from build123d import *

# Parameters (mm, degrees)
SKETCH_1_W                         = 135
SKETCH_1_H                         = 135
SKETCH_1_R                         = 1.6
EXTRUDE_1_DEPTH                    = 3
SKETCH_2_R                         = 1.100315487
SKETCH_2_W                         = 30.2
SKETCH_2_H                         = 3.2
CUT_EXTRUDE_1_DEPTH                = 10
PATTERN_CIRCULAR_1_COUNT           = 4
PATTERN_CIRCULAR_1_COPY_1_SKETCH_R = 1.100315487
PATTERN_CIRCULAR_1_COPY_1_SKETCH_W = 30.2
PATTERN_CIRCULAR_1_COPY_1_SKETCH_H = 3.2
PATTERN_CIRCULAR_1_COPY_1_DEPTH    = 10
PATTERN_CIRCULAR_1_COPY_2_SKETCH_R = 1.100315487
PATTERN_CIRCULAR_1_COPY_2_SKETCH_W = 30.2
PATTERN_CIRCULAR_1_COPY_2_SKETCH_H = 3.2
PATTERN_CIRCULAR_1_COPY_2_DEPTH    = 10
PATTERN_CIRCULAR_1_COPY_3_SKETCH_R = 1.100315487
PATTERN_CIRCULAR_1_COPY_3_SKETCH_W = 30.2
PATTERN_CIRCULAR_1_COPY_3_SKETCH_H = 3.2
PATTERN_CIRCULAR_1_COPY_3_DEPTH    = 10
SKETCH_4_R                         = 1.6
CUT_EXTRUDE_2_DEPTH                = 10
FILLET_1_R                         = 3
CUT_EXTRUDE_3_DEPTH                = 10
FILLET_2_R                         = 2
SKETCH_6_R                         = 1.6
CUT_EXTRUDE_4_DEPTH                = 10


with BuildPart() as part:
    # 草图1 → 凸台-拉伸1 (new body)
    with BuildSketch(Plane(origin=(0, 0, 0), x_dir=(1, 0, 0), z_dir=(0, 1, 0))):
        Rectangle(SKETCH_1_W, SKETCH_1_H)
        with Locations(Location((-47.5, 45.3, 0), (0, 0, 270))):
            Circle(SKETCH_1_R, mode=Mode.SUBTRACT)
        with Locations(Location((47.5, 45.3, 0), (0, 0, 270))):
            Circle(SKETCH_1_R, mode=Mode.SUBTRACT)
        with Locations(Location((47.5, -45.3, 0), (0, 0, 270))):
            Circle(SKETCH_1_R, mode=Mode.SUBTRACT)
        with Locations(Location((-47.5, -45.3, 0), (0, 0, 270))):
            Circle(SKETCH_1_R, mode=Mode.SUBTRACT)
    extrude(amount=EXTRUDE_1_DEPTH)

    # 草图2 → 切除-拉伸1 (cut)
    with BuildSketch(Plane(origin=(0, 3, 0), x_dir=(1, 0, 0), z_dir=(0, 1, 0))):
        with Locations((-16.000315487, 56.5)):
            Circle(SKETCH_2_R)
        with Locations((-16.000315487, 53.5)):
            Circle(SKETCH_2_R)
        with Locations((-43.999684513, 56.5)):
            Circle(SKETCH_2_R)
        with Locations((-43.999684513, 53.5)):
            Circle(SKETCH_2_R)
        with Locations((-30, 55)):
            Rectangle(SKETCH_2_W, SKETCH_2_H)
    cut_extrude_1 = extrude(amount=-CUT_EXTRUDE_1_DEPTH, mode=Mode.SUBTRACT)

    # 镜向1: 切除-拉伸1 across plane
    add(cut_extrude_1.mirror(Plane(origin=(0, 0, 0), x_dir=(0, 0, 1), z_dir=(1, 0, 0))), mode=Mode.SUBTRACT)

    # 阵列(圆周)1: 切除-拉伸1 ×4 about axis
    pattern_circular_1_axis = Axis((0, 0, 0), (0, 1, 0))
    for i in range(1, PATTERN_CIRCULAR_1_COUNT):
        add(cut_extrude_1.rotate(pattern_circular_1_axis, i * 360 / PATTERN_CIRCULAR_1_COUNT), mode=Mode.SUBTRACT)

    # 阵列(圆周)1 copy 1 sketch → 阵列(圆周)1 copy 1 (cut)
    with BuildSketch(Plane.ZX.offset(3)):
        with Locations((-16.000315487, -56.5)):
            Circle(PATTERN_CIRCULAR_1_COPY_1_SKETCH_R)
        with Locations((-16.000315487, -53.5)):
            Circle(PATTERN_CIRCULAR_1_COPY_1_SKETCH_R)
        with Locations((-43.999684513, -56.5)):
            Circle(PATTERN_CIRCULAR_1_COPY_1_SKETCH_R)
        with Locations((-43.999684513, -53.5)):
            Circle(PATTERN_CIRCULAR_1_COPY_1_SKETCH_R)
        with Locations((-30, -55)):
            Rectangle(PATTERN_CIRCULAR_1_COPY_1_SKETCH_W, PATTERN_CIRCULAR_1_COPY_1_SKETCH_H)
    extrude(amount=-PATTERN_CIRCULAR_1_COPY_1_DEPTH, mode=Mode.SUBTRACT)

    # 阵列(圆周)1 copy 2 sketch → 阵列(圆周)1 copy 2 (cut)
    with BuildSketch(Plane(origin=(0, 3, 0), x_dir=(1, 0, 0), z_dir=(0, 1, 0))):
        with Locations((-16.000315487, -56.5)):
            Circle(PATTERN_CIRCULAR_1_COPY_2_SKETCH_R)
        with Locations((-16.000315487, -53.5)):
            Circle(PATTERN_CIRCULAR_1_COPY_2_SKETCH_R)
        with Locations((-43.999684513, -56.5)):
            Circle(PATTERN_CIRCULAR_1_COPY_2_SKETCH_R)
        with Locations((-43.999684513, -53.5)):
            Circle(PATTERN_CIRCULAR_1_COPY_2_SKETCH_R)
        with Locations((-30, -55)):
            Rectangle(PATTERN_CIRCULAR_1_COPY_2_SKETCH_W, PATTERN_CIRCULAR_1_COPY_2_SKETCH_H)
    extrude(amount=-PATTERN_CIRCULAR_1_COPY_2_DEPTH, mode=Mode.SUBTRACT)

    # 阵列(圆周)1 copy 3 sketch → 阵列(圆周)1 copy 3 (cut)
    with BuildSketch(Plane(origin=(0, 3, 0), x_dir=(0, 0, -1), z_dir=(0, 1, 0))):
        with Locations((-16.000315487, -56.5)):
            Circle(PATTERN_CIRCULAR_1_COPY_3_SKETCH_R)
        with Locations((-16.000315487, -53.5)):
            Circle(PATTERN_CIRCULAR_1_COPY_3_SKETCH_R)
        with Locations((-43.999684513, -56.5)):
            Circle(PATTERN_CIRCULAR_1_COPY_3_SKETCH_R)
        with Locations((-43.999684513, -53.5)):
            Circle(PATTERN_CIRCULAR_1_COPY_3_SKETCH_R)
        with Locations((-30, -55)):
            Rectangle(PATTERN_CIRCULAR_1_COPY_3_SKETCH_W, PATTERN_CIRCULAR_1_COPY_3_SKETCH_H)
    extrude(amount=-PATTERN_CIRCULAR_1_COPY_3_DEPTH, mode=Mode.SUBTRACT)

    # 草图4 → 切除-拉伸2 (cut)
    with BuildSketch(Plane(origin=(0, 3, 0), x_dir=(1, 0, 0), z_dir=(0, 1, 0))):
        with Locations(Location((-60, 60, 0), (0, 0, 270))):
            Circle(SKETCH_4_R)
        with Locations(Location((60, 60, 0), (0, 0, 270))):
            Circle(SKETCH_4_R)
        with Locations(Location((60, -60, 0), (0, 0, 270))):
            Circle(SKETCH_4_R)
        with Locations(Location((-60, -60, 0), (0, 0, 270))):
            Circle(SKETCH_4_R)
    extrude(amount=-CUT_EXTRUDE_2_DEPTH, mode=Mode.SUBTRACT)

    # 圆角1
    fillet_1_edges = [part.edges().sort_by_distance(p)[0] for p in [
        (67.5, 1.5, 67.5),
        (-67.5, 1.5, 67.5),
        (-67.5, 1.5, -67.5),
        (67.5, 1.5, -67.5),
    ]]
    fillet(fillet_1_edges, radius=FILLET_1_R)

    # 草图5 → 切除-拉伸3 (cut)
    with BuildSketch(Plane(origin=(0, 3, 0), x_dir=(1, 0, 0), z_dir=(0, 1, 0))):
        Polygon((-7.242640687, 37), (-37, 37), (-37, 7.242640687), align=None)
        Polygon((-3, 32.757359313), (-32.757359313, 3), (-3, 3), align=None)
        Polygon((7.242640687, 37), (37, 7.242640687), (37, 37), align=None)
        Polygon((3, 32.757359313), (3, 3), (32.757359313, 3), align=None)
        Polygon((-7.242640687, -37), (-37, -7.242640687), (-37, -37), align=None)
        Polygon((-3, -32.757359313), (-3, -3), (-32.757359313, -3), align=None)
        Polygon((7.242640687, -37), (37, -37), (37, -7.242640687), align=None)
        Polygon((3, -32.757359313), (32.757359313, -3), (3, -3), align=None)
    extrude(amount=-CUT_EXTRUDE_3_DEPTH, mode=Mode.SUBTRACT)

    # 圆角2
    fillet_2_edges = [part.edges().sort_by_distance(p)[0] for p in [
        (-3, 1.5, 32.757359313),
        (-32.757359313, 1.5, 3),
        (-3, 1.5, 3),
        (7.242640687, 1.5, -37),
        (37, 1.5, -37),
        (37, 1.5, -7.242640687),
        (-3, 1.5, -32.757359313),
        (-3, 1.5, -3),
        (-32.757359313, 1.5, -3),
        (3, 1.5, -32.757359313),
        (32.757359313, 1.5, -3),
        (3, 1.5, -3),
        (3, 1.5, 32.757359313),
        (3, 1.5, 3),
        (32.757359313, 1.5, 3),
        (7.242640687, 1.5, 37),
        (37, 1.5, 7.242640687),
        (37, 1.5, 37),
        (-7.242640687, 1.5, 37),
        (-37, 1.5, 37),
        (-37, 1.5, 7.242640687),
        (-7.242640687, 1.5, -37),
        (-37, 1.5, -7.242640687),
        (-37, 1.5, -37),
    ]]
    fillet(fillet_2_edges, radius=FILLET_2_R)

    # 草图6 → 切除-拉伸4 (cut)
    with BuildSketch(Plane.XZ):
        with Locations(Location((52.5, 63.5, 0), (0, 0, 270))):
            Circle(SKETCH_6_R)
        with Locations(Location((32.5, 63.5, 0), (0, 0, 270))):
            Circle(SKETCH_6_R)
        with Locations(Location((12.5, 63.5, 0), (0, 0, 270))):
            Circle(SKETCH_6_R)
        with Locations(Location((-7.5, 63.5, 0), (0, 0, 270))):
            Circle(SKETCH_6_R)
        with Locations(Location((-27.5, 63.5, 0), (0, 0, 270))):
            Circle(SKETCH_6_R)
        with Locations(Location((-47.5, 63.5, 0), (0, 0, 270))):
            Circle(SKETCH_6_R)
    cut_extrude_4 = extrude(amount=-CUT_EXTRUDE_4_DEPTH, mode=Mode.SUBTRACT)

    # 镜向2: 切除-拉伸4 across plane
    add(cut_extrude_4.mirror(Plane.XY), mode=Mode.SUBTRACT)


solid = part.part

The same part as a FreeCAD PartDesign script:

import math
import FreeCAD as App
import Part
import Sketcher

V = App.Vector


def edges_at(feature, points):
    """Names of the edges that pass closest to the given points."""
    edges = feature.Shape.Edges
    near = lambda p: min(range(len(edges)), key=lambda i: edges[i].distToShape(Part.Vertex(*p))[0])
    return sorted({f"Edge{near(p) + 1}" for p in points})


def add_polygon(sketch, points):
    """Adds a closed chain of lines whose ends are joined by coincident constraints."""
    first, n = sketch.GeometryCount, len(points)
    for a, b in zip(points, points[1:] + points[:1]):
        sketch.addGeometry(Part.LineSegment(App.Vector(*a, 0), App.Vector(*b, 0)), False)
    for i in range(n):
        sketch.addConstraint(Sketcher.Constraint("Coincident", first + i, 2, first + (i + 1) % n, 1))

doc = App.newDocument("Part")
body = doc.addObject("PartDesign::Body", "Body")

# Sketch on XZ plane
sketch1 = doc.addObject("Sketcher::SketchObject", "Sketch")
body.addObject(sketch1)
sketch1.AttachmentSupport = (doc.XZ_Plane, [""])
sketch1.MapMode = "FlatFace"
add_polygon(sketch1, [(-67.5, -67.5), (-67.5, 67.5), (67.5, 67.5), (67.5, -67.5)])  # lines 0-3
sketch1.addGeometry(Part.Circle(V(-47.5, 45.3, 0), V(0, 0, 1), 1.6), False)  # 4
sketch1.addGeometry(Part.Circle(V(47.5, 45.3, 0), V(0, 0, 1), 1.6), False)  # 5
sketch1.addGeometry(Part.Circle(V(-47.5, -45.3, 0), V(0, 0, 1), 1.6), False)  # 6
sketch1.addGeometry(Part.Circle(V(47.5, -45.3, 0), V(0, 0, 1), 1.6), False)  # 7
sketch1.addConstraint([
    Sketcher.Constraint("Vertical", 0),
    Sketcher.Constraint("Horizontal", 1),
    Sketcher.Constraint("Vertical", 2),
    Sketcher.Constraint("Horizontal", 3),
    Sketcher.Constraint("Equal", 4, 5),
    Sketcher.Constraint("Equal", 5, 6),
    Sketcher.Constraint("Equal", 6, 7),
    Sketcher.Constraint("Symmetric", 5, 3, 6, 3, -1, 1),
    Sketcher.Constraint("Symmetric", 4, 3, 7, 3, -1, 1),
    Sketcher.Constraint("Symmetric", 0, 2, 2, 2, -1, 1),
    Sketcher.Constraint("Symmetric", 4, 3, 5, 3, -2),
    Sketcher.Constraint("Equal", 3, 0),
    Sketcher.Constraint("Diameter", 4, 3.2),
    Sketcher.Constraint("DistanceX", 1, 1, 1, 2, 135.0),
    Sketcher.Constraint("DistanceX", 4, 3, 5, 3, 95.0),
    Sketcher.Constraint("DistanceY", -1, 1, 4, 3, 45.3),
])
pad1 = doc.addObject("PartDesign::Pad", "Pad")
body.addObject(pad1)
pad1.Profile = sketch1
pad1.Length = 3
pad1.Reversed = True

# Sketch on XZ plane
sketch2 = doc.addObject("Sketcher::SketchObject", "Sketch001")
body.addObject(sketch2)
sketch2.AttachmentSupport = (doc.XZ_Plane, [""])
sketch2.MapMode = "FlatFace"
sketch2.AttachmentOffset = App.Placement(V(0, 0, -3), App.Rotation())
sketch2.addGeometry([
    Part.LineSegment(V(-45.1, -53.4, 0), V(-45.0954, -53.4, 0)),  # 0
    Part.ArcOfCircle(Part.Circle(V(-43.9997, -53.5, 0), V(0, 0, 1), 1.1003), math.radians(5), math.radians(175)),  # 1
    Part.LineSegment(V(-42.9039, -53.4, 0), V(-17.0961, -53.4, 0)),  # 2
    Part.ArcOfCircle(Part.Circle(V(-16.0003, -53.5, 0), V(0, 0, 1), 1.1003), math.radians(5), math.radians(175)),  # 3
    Part.LineSegment(V(-14.9046, -53.4, 0), V(-14.9, -53.4, 0)),  # 4
    Part.LineSegment(V(-14.9, -53.4, 0), V(-14.9, -56.6, 0)),  # 5
    Part.LineSegment(V(-14.9, -56.6, 0), V(-14.9046, -56.6, 0)),  # 6
    Part.ArcOfCircle(Part.Circle(V(-16.0003, -56.5, 0), V(0, 0, 1), 1.1003), math.radians(-175), math.radians(-5)),  # 7
    Part.LineSegment(V(-17.0961, -56.6, 0), V(-42.9039, -56.6, 0)),  # 8
    Part.ArcOfCircle(Part.Circle(V(-43.9997, -56.5, 0), V(0, 0, 1), 1.1003), math.radians(-175), math.radians(-5)),  # 9
    Part.LineSegment(V(-45.0954, -56.6, 0), V(-45.1, -56.6, 0)),  # 10
    Part.LineSegment(V(-45.1, -56.6, 0), V(-45.1, -53.4, 0)),  # 11
], False)
sketch2.addConstraint([
    Sketcher.Constraint("Coincident", 0, 2, 1, 2),
    Sketcher.Constraint("Coincident", 1, 1, 2, 1),
    Sketcher.Constraint("Coincident", 2, 2, 3, 2),
    Sketcher.Constraint("Coincident", 3, 1, 4, 1),
    Sketcher.Constraint("Coincident", 4, 2, 5, 1),
    Sketcher.Constraint("Coincident", 5, 2, 6, 1),
    Sketcher.Constraint("Coincident", 6, 2, 7, 2),
    Sketcher.Constraint("Coincident", 7, 1, 8, 1),
    Sketcher.Constraint("Coincident", 8, 2, 9, 2),
    Sketcher.Constraint("Coincident", 9, 1, 10, 1),
    Sketcher.Constraint("Coincident", 10, 2, 11, 1),
    Sketcher.Constraint("Coincident", 11, 2, 0, 1),
    Sketcher.Constraint("Horizontal", 0),
    Sketcher.Constraint("Horizontal", 2),
    Sketcher.Constraint("Horizontal", 4),
    Sketcher.Constraint("Vertical", 5),
    Sketcher.Constraint("Horizontal", 6),
    Sketcher.Constraint("Horizontal", 8),
    Sketcher.Constraint("Horizontal", 10),
    Sketcher.Constraint("Vertical", 11),
    Sketcher.Constraint("Equal", 1, 3),
    Sketcher.Constraint("Equal", 3, 7),
    Sketcher.Constraint("Equal", 7, 9),
    Sketcher.Constraint("Horizontal", 1, 3, 3, 3),
    Sketcher.Constraint("Horizontal", 7, 3, 9, 3),
    Sketcher.Constraint("Horizontal", 0, 2, 1, 1),
    Sketcher.Constraint("Horizontal", 2, 2, 3, 1),
    Sketcher.Constraint("Horizontal", 6, 2, 7, 1),
    Sketcher.Constraint("Horizontal", 8, 2, 9, 1),
    Sketcher.Constraint("Vertical", 3, 3, 7, 3),
    Sketcher.Constraint("Vertical", 1, 3, 9, 3),
    Sketcher.Constraint("Vertical", 3, 1, 6, 2),
    Sketcher.Constraint("Equal", 0, 4),
    Sketcher.Constraint("DistanceY", 5, 2, 5, 1, 3.2),
    Sketcher.Constraint("DistanceY", 7, 3, 3, 3, 3.0),
    Sketcher.Constraint("DistanceY", 1, 3, -1, 1, 53.5),
    Sketcher.Constraint("DistanceX", 4, 2, -1, 1, 14.9),
    Sketcher.Constraint("DistanceX", 10, 2, -1, 1, 45.1),
    Sketcher.Constraint("Radius", 1, 1.100315),
    Sketcher.Constraint("DistanceX", 0, 1, 0, 2, 0.004554),
])
pocket1 = doc.addObject("PartDesign::Pocket", "Pocket")
body.addObject(pocket1)
pocket1.Profile = sketch2
pocket1.Length = 10
pocket1.Reversed = True
doc.recompute()

mirrored = doc.addObject("PartDesign::Mirrored", "Mirrored")
body.addObject(mirrored)
mirrored.Originals = [pocket1]
mirrored.MirrorPlane = (doc.YZ_Plane, [""])
body.Tip = mirrored
doc.recompute()

polarpattern = doc.addObject("PartDesign::PolarPattern", "PolarPattern")
body.addObject(polarpattern)
polarpattern.Originals = [pocket1]
polarpattern.Axis = (doc.Y_Axis, [""])
polarpattern.Angle = 360
polarpattern.Occurrences = 4
body.Tip = polarpattern

# Sketch on XZ plane
sketch3 = doc.addObject("Sketcher::SketchObject", "Sketch002")
body.addObject(sketch3)
sketch3.AttachmentSupport = (doc.XZ_Plane, [""])
sketch3.MapMode = "FlatFace"
sketch3.AttachmentOffset = App.Placement(V(0, 0, -3), App.Rotation())
sketch3.addGeometry([
    Part.LineSegment(V(-56.6, -14.9046, 0), V(-56.6, -14.9, 0)),  # 0
    Part.LineSegment(V(-56.6, -14.9, 0), V(-53.4, -14.9, 0)),  # 1
    Part.LineSegment(V(-53.4, -14.9, 0), V(-53.4, -14.9046, 0)),  # 2
    Part.ArcOfCircle(Part.Circle(V(-53.5, -16.0003, 0), V(0, 0, 1), 1.1003), math.radians(-85), math.radians(85)),  # 3
    Part.LineSegment(V(-53.4, -17.0961, 0), V(-53.4, -42.9039, 0)),  # 4
    Part.ArcOfCircle(Part.Circle(V(-53.5, -43.9997, 0), V(0, 0, 1), 1.1003), math.radians(-85), math.radians(85)),  # 5
    Part.LineSegment(V(-53.4, -45.0954, 0), V(-53.4, -45.1, 0)),  # 6
    Part.LineSegment(V(-53.4, -45.1, 0), V(-56.6, -45.1, 0)),  # 7
    Part.LineSegment(V(-56.6, -45.1, 0), V(-56.6, -45.0954, 0)),  # 8
    Part.ArcOfCircle(Part.Circle(V(-56.5, -43.9997, 0), V(0, 0, 1), 1.1003), math.radians(95), math.radians(265)),  # 9
    Part.LineSegment(V(-56.6, -42.9039, 0), V(-56.6, -17.0961, 0)),  # 10
    Part.ArcOfCircle(Part.Circle(V(-56.5, -16.0003, 0), V(0, 0, 1), 1.1003), math.radians(95), math.radians(265)),  # 11
], False)
sketch3.addConstraint([
    Sketcher.Constraint("Coincident", 0, 2, 1, 1),
    Sketcher.Constraint("Coincident", 1, 2, 2, 1),
    Sketcher.Constraint("Coincident", 2, 2, 3, 2),
    Sketcher.Constraint("Coincident", 3, 1, 4, 1),
    Sketcher.Constraint("Coincident", 4, 2, 5, 2),
    Sketcher.Constraint("Coincident", 5, 1, 6, 1),
    Sketcher.Constraint("Coincident", 6, 2, 7, 1),
    Sketcher.Constraint("Coincident", 7, 2, 8, 1),
    Sketcher.Constraint("Coincident", 8, 2, 9, 2),
    Sketcher.Constraint("Coincident", 9, 1, 10, 1),
    Sketcher.Constraint("Coincident", 10, 2, 11, 2),
    Sketcher.Constraint("Coincident", 11, 1, 0, 1),
    Sketcher.Constraint("Vertical", 0),
    Sketcher.Constraint("Horizontal", 1),
    Sketcher.Constraint("Vertical", 2),
    Sketcher.Constraint("Vertical", 4),
    Sketcher.Constraint("Vertical", 6),
    Sketcher.Constraint("Horizontal", 7),
    Sketcher.Constraint("Vertical", 8),
    Sketcher.Constraint("Vertical", 10),
    Sketcher.Constraint("Equal", 3, 5),
    Sketcher.Constraint("Equal", 5, 9),
    Sketcher.Constraint("Equal", 9, 11),
    Sketcher.Constraint("Horizontal", 5, 3, 9, 3),
    Sketcher.Constraint("Horizontal", 3, 3, 11, 3),
    Sketcher.Constraint("Horizontal", 5, 1, 8, 2),
    Sketcher.Constraint("Horizontal", 4, 2, 9, 1),
    Sketcher.Constraint("Horizontal", 3, 1, 10, 2),
    Sketcher.Constraint("Horizontal", 2, 2, 11, 1),
    Sketcher.Constraint("Vertical", 3, 3, 5, 3),
    Sketcher.Constraint("Vertical", 2, 2, 3, 1),
    Sketcher.Constraint("Vertical", 4, 2, 5, 1),
    Sketcher.Constraint("Equal", 2, 6),
    Sketcher.Constraint("DistanceX", 1, 1, 1, 2, 3.2),
    Sketcher.Constraint("DistanceX", 9, 3, 5, 3, 3.0),
    Sketcher.Constraint("DistanceX", 3, 3, -1, 1, 53.5),
    Sketcher.Constraint("DistanceY", 0, 2, -1, 1, 14.9),
    Sketcher.Constraint("DistanceY", 6, 2, -1, 1, 45.1),
    Sketcher.Constraint("Radius", 3, 1.100315),
    Sketcher.Constraint("DistanceY", 0, 1, 0, 2, 0.004554),
])
pocket2 = doc.addObject("PartDesign::Pocket", "Pocket001")
body.addObject(pocket2)
pocket2.Profile = sketch3
pocket2.Length = 10
pocket2.Reversed = True

# Sketch on XZ plane
sketch4 = doc.addObject("Sketcher::SketchObject", "Sketch003")
body.addObject(sketch4)
sketch4.AttachmentSupport = (doc.XZ_Plane, [""])
sketch4.MapMode = "FlatFace"
sketch4.AttachmentOffset = App.Placement(V(0, 0, -3), App.Rotation())
sketch4.addGeometry([
    Part.LineSegment(V(-14.9046, 56.6, 0), V(-14.9, 56.6, 0)),  # 0
    Part.LineSegment(V(-14.9, 56.6, 0), V(-14.9, 53.4, 0)),  # 1
    Part.LineSegment(V(-14.9, 53.4, 0), V(-14.9046, 53.4, 0)),  # 2
    Part.ArcOfCircle(Part.Circle(V(-16.0003, 53.5, 0), V(0, 0, 1), 1.1003), math.radians(-175), math.radians(-5)),  # 3
    Part.LineSegment(V(-17.0961, 53.4, 0), V(-42.9039, 53.4, 0)),  # 4
    Part.ArcOfCircle(Part.Circle(V(-43.9997, 53.5, 0), V(0, 0, 1), 1.1003), math.radians(-175), math.radians(-5)),  # 5
    Part.LineSegment(V(-45.0954, 53.4, 0), V(-45.1, 53.4, 0)),  # 6
    Part.LineSegment(V(-45.1, 53.4, 0), V(-45.1, 56.6, 0)),  # 7
    Part.LineSegment(V(-45.1, 56.6, 0), V(-45.0954, 56.6, 0)),  # 8
    Part.ArcOfCircle(Part.Circle(V(-43.9997, 56.5, 0), V(0, 0, 1), 1.1003), math.radians(5), math.radians(175)),  # 9
    Part.LineSegment(V(-42.9039, 56.6, 0), V(-17.0961, 56.6, 0)),  # 10
    Part.ArcOfCircle(Part.Circle(V(-16.0003, 56.5, 0), V(0, 0, 1), 1.1003), math.radians(5), math.radians(175)),  # 11
], False)
sketch4.addConstraint([
    Sketcher.Constraint("Coincident", 0, 2, 1, 1),
    Sketcher.Constraint("Coincident", 1, 2, 2, 1),
    Sketcher.Constraint("Coincident", 2, 2, 3, 2),
    Sketcher.Constraint("Coincident", 3, 1, 4, 1),
    Sketcher.Constraint("Coincident", 4, 2, 5, 2),
    Sketcher.Constraint("Coincident", 5, 1, 6, 1),
    Sketcher.Constraint("Coincident", 6, 2, 7, 1),
    Sketcher.Constraint("Coincident", 7, 2, 8, 1),
    Sketcher.Constraint("Coincident", 8, 2, 9, 2),
    Sketcher.Constraint("Coincident", 9, 1, 10, 1),
    Sketcher.Constraint("Coincident", 10, 2, 11, 2),
    Sketcher.Constraint("Coincident", 11, 1, 0, 1),
    Sketcher.Constraint("Horizontal", 0),
    Sketcher.Constraint("Vertical", 1),
    Sketcher.Constraint("Horizontal", 2),
    Sketcher.Constraint("Horizontal", 4),
    Sketcher.Constraint("Horizontal", 6),
    Sketcher.Constraint("Vertical", 7),
    Sketcher.Constraint("Horizontal", 8),
    Sketcher.Constraint("Horizontal", 10),
    Sketcher.Constraint("Equal", 3, 5),
    Sketcher.Constraint("Equal", 5, 9),
    Sketcher.Constraint("Equal", 9, 11),
    Sketcher.Constraint("Horizontal", 3, 3, 5, 3),
    Sketcher.Constraint("Horizontal", 9, 3, 11, 3),
    Sketcher.Constraint("Horizontal", 2, 2, 3, 1),
    Sketcher.Constraint("Horizontal", 4, 2, 5, 1),
    Sketcher.Constraint("Horizontal", 0, 2, 7, 2),
    Sketcher.Constraint("Horizontal", 8, 2, 9, 1),
    Sketcher.Constraint("Vertical", 5, 3, 9, 3),
    Sketcher.Constraint("Vertical", 3, 3, 11, 3),
    Sketcher.Constraint("Vertical", 5, 1, 8, 2),
    Sketcher.Constraint("Equal", 2, 6),
    Sketcher.Constraint("DistanceY", 1, 2, 1, 1, 3.2),
    Sketcher.Constraint("DistanceY", 5, 3, 9, 3, 3.0),
    Sketcher.Constraint("DistanceY", -1, 1, 3, 3, 53.5),
    Sketcher.Constraint("DistanceX", 0, 2, -1, 1, 14.9),
    Sketcher.Constraint("DistanceX", 6, 2, -1, 1, 45.1),
    Sketcher.Constraint("Radius", 3, 1.100315),
    Sketcher.Constraint("DistanceX", 0, 1, 0, 2, 0.004554),
])
pocket3 = doc.addObject("PartDesign::Pocket", "Pocket002")
body.addObject(pocket3)
pocket3.Profile = sketch4
pocket3.Length = 10
pocket3.Reversed = True

# Sketch on XZ plane
sketch5 = doc.addObject("Sketcher::SketchObject", "Sketch004")
body.addObject(sketch5)
sketch5.AttachmentSupport = (doc.XZ_Plane, [""])
sketch5.MapMode = "FlatFace"
sketch5.AttachmentOffset = App.Placement(V(0, 0, -3), App.Rotation())
sketch5.addGeometry([
    Part.LineSegment(V(56.6, 14.9046, 0), V(56.6, 14.9, 0)),  # 0
    Part.LineSegment(V(56.6, 14.9, 0), V(53.4, 14.9, 0)),  # 1
    Part.LineSegment(V(53.4, 14.9, 0), V(53.4, 14.9046, 0)),  # 2
    Part.ArcOfCircle(Part.Circle(V(53.5, 16.0003, 0), V(0, 0, 1), 1.1003), math.radians(95), math.radians(265)),  # 3
    Part.LineSegment(V(53.4, 17.0961, 0), V(53.4, 42.9039, 0)),  # 4
    Part.ArcOfCircle(Part.Circle(V(53.5, 43.9997, 0), V(0, 0, 1), 1.1003), math.radians(95), math.radians(265)),  # 5
    Part.LineSegment(V(53.4, 45.0954, 0), V(53.4, 45.1, 0)),  # 6
    Part.LineSegment(V(53.4, 45.1, 0), V(56.6, 45.1, 0)),  # 7
    Part.LineSegment(V(56.6, 45.1, 0), V(56.6, 45.0954, 0)),  # 8
    Part.ArcOfCircle(Part.Circle(V(56.5, 43.9997, 0), V(0, 0, 1), 1.1003), math.radians(-85), math.radians(85)),  # 9
    Part.LineSegment(V(56.6, 42.9039, 0), V(56.6, 17.0961, 0)),  # 10
    Part.ArcOfCircle(Part.Circle(V(56.5, 16.0003, 0), V(0, 0, 1), 1.1003), math.radians(-85), math.radians(85)),  # 11
], False)
sketch5.addConstraint([
    Sketcher.Constraint("Coincident", 0, 2, 1, 1),
    Sketcher.Constraint("Coincident", 1, 2, 2, 1),
    Sketcher.Constraint("Coincident", 2, 2, 3, 2),
    Sketcher.Constraint("Coincident", 3, 1, 4, 1),
    Sketcher.Constraint("Coincident", 4, 2, 5, 2),
    Sketcher.Constraint("Coincident", 5, 1, 6, 1),
    Sketcher.Constraint("Coincident", 6, 2, 7, 1),
    Sketcher.Constraint("Coincident", 7, 2, 8, 1),
    Sketcher.Constraint("Coincident", 8, 2, 9, 2),
    Sketcher.Constraint("Coincident", 9, 1, 10, 1),
    Sketcher.Constraint("Coincident", 10, 2, 11, 2),
    Sketcher.Constraint("Coincident", 11, 1, 0, 1),
    Sketcher.Constraint("Vertical", 0),
    Sketcher.Constraint("Horizontal", 1),
    Sketcher.Constraint("Vertical", 2),
    Sketcher.Constraint("Vertical", 4),
    Sketcher.Constraint("Vertical", 6),
    Sketcher.Constraint("Horizontal", 7),
    Sketcher.Constraint("Vertical", 8),
    Sketcher.Constraint("Vertical", 10),
    Sketcher.Constraint("Equal", 3, 5),
    Sketcher.Constraint("Equal", 5, 9),
    Sketcher.Constraint("Equal", 9, 11),
    Sketcher.Constraint("Horizontal", 5, 3, 9, 3),
    Sketcher.Constraint("Horizontal", 3, 3, 11, 3),
    Sketcher.Constraint("Horizontal", 5, 1, 8, 2),
    Sketcher.Constraint("Horizontal", 4, 2, 9, 1),
    Sketcher.Constraint("Horizontal", 3, 1, 10, 2),
    Sketcher.Constraint("Horizontal", 2, 2, 11, 1),
    Sketcher.Constraint("Vertical", 3, 3, 5, 3),
    Sketcher.Constraint("Vertical", 2, 2, 3, 1),
    Sketcher.Constraint("Vertical", 4, 2, 5, 1),
    Sketcher.Constraint("Equal", 2, 6),
    Sketcher.Constraint("DistanceX", 1, 2, 1, 1, 3.2),
    Sketcher.Constraint("DistanceX", 5, 3, 9, 3, 3.0),
    Sketcher.Constraint("DistanceX", -1, 1, 3, 3, 53.5),
    Sketcher.Constraint("DistanceY", -1, 1, 0, 2, 14.9),
    Sketcher.Constraint("DistanceY", -1, 1, 6, 2, 45.1),
    Sketcher.Constraint("Radius", 3, 1.100315),
    Sketcher.Constraint("DistanceY", 0, 2, 0, 1, 0.004554),
])
pocket4 = doc.addObject("PartDesign::Pocket", "Pocket003")
body.addObject(pocket4)
pocket4.Profile = sketch5
pocket4.Length = 10
pocket4.Reversed = True

# Sketch on XZ plane
sketch6 = doc.addObject("Sketcher::SketchObject", "Sketch005")
body.addObject(sketch6)
sketch6.AttachmentSupport = (doc.XZ_Plane, [""])
sketch6.MapMode = "FlatFace"
sketch6.AttachmentOffset = App.Placement(V(0, 0, -3), App.Rotation())
sketch6.addGeometry([
    Part.Circle(V(-60, -60, 0), V(0, 0, 1), 1.6),
    Part.Circle(V(60, -60, 0), V(0, 0, 1), 1.6),
    Part.Circle(V(60, 60, 0), V(0, 0, 1), 1.6),
    Part.Circle(V(-60, 60, 0), V(0, 0, 1), 1.6),
], False)
sketch6.addConstraint([
    Sketcher.Constraint("Equal", 0, 1),
    Sketcher.Constraint("Equal", 1, 2),
    Sketcher.Constraint("Equal", 2, 3),
    Sketcher.Constraint("Symmetric", 0, 3, 2, 3, -1, 1),
    Sketcher.Constraint("Symmetric", 1, 3, 3, 3, -1, 1),
    Sketcher.Constraint("Symmetric", 0, 3, 1, 3, -2),
    Sketcher.Constraint("Diameter", 0, 3.2),
    Sketcher.Constraint("DistanceX", 0, 3, -1, 1, 60.0),
    Sketcher.Constraint("DistanceY", 0, 3, -1, 1, 60.0),
])
pocket5 = doc.addObject("PartDesign::Pocket", "Pocket004")
body.addObject(pocket5)
pocket5.Profile = sketch6
pocket5.Length = 10
pocket5.Reversed = True
doc.recompute()

fillet = doc.addObject("PartDesign::Fillet", "Fillet")
body.addObject(fillet)
fillet.Base = (pocket5, edges_at(pocket5, [
    (67.5, 1.5, 67.5),
    (-67.5, 1.5, 67.5),
    (-67.5, 1.5, -67.5),
    (67.5, 1.5, -67.5),
]))
fillet.Radius = 3

# Sketch on XZ plane
sketch7 = doc.addObject("Sketcher::SketchObject", "Sketch006")
body.addObject(sketch7)
sketch7.AttachmentSupport = (doc.XZ_Plane, [""])
sketch7.MapMode = "FlatFace"
sketch7.AttachmentOffset = App.Placement(V(0, 0, -3), App.Rotation())
add_polygon(sketch7, [(-7, -37), (-37, -37), (-37, -7)])  # lines 0-2
add_polygon(sketch7, [(-3, -33), (-33, -3), (-3, -3)])  # lines 3-5
add_polygon(sketch7, [(7, -37), (37, -7), (37, -37)])  # lines 6-8
add_polygon(sketch7, [(3, -33), (3, -3), (33, -3)])  # lines 9-11
add_polygon(sketch7, [(-7, 37), (-37, 7), (-37, 37)])  # lines 12-14
add_polygon(sketch7, [(-3, 33), (-3, 3), (-33, 3)])  # lines 15-17
add_polygon(sketch7, [(7, 37), (37, 37), (37, 7)])  # lines 18-20
add_polygon(sketch7, [(3, 33), (33, 3), (3, 3)])  # lines 21-23
sketch7.addConstraint([
    Sketcher.Constraint("Horizontal", 0),
    Sketcher.Constraint("Vertical", 1),
    Sketcher.Constraint("Horizontal", 4),
    Sketcher.Constraint("Vertical", 5),
    Sketcher.Constraint("Vertical", 7),
    Sketcher.Constraint("Horizontal", 8),
    Sketcher.Constraint("Vertical", 9),
    Sketcher.Constraint("Horizontal", 10),
    Sketcher.Constraint("Vertical", 13),
    Sketcher.Constraint("Horizontal", 14),
    Sketcher.Constraint("Vertical", 15),
    Sketcher.Constraint("Horizontal", 16),
    Sketcher.Constraint("Horizontal", 18),
    Sketcher.Constraint("Vertical", 19),
    Sketcher.Constraint("Horizontal", 22),
    Sketcher.Constraint("Vertical", 23),
    Sketcher.Constraint("Symmetric", 6, 2, 12, 2, -1, 1),
    Sketcher.Constraint("Symmetric", 8, 2, 14, 2, -1, 1),
    Sketcher.Constraint("Symmetric", 9, 2, 15, 2, -1, 1),
    Sketcher.Constraint("Symmetric", 0, 2, 18, 2, -1, 1),
    Sketcher.Constraint("Symmetric", 3, 2, 21, 2, -1, 1),
    Sketcher.Constraint("Symmetric", 5, 2, 23, 2, -1, 1),
    Sketcher.Constraint("Symmetric", 1, 2, 6, 2, -2),
    Sketcher.Constraint("Symmetric", 2, 2, 8, 2, -2),
    Sketcher.Constraint("Symmetric", 4, 2, 9, 2, -2),
    Sketcher.Constraint("Parallel", 2, 3),
    Sketcher.Constraint("Perpendicular", 3, 6),
    Sketcher.Constraint("Parallel", 6, 11),
    Sketcher.Constraint("Parallel", 12, 17),
    Sketcher.Constraint("Perpendicular", 17, 20),
    Sketcher.Constraint("Horizontal", 5, 2, 11, 2),
    Sketcher.Constraint("Horizontal", 12, 2, 19, 2),
    Sketcher.Constraint("Horizontal", 17, 2, 23, 2),
    Sketcher.Constraint("Equal", 0, 4),
    Sketcher.Constraint("DistanceX", 0, 2, -1, 1, 37.0),
    Sketcher.Constraint("DistanceY", 0, 2, -1, 1, 37.0),
    Sketcher.Constraint("DistanceY", 3, 2, -1, 1, 3.0),
    Sketcher.Constraint("DistanceX", 4, 2, -1, 1, 3.0),
    Sketcher.Constraint("DistanceX", 0, 2, 0, 1, 29.757359),
])
pocket6 = doc.addObject("PartDesign::Pocket", "Pocket005")
body.addObject(pocket6)
pocket6.Profile = sketch7
pocket6.Length = 10
pocket6.Reversed = True
doc.recompute()

fillet2 = doc.addObject("PartDesign::Fillet", "Fillet001")
body.addObject(fillet2)
fillet2.Base = (pocket6, edges_at(pocket6, [
    (-3, 1.5, 32.757),
    (-32.757, 1.5, 3),
    (-3, 1.5, 3),
    (7.243, 1.5, -37),
    (37, 1.5, -37),
    (37, 1.5, -7.243),
    (-3, 1.5, -32.757),
    (-3, 1.5, -3),
    (-32.757, 1.5, -3),
    (3, 1.5, -32.757),
    (32.757, 1.5, -3),
    (3, 1.5, -3),
    (3, 1.5, 32.757),
    (3, 1.5, 3),
    (32.757, 1.5, 3),
    (7.243, 1.5, 37),
    (37, 1.5, 7.243),
    (37, 1.5, 37),
    (-7.243, 1.5, 37),
    (-37, 1.5, 37),
    (-37, 1.5, 7.243),
    (-7.243, 1.5, -37),
    (-37, 1.5, -7.243),
    (-37, 1.5, -37),
]))
fillet2.Radius = 2

# Sketch on XZ plane
sketch8 = doc.addObject("Sketcher::SketchObject", "Sketch007")
body.addObject(sketch8)
sketch8.AttachmentSupport = (doc.XZ_Plane, [""])
sketch8.MapMode = "FlatFace"
sketch8.addGeometry([
    Part.Circle(V(52.5, 63.5, 0), V(0, 0, 1), 1.6),  # 0
    Part.Circle(V(32.5, 63.5, 0), V(0, 0, 1), 1.6),  # 1
    Part.Circle(V(12.5, 63.5, 0), V(0, 0, 1), 1.6),  # 2
    Part.Circle(V(-7.5, 63.5, 0), V(0, 0, 1), 1.6),  # 3
    Part.Circle(V(-27.5, 63.5, 0), V(0, 0, 1), 1.6),  # 4
    Part.Circle(V(-47.5, 63.5, 0), V(0, 0, 1), 1.6),  # 5
], False)
sketch8.addConstraint([
    Sketcher.Constraint("Equal", 0, 1),
    Sketcher.Constraint("Equal", 1, 2),
    Sketcher.Constraint("Equal", 2, 3),
    Sketcher.Constraint("Equal", 3, 4),
    Sketcher.Constraint("Equal", 4, 5),
    Sketcher.Constraint("Horizontal", 0, 3, 1, 3),
    Sketcher.Constraint("Horizontal", 1, 3, 2, 3),
    Sketcher.Constraint("Horizontal", 2, 3, 3, 3),
    Sketcher.Constraint("Horizontal", 3, 3, 4, 3),
    Sketcher.Constraint("Horizontal", 4, 3, 5, 3),
    Sketcher.Constraint("Diameter", 0, 3.2),
    Sketcher.Constraint("DistanceX", 1, 3, 0, 3, 20.0),
    Sketcher.Constraint("DistanceX", 2, 3, 1, 3, 20.0),
    Sketcher.Constraint("DistanceX", 3, 3, 2, 3, 20.0),
    Sketcher.Constraint("DistanceX", 4, 3, 3, 3, 20.0),
    Sketcher.Constraint("DistanceX", 5, 3, 4, 3, 20.0),
    Sketcher.Constraint("DistanceX", -1, 1, 0, 3, 52.5),
    Sketcher.Constraint("DistanceY", -1, 1, 0, 3, 63.5),
])
pocket7 = doc.addObject("PartDesign::Pocket", "Pocket006")
body.addObject(pocket7)
pocket7.Profile = sketch8
pocket7.Length = 10
doc.recompute()

mirrored2 = doc.addObject("PartDesign::Mirrored", "Mirrored001")
body.addObject(mirrored2)
mirrored2.Originals = [pocket7]
mirrored2.MirrorPlane = (doc.XY_Plane, [""])
body.Tip = mirrored2

doc.recompute()
